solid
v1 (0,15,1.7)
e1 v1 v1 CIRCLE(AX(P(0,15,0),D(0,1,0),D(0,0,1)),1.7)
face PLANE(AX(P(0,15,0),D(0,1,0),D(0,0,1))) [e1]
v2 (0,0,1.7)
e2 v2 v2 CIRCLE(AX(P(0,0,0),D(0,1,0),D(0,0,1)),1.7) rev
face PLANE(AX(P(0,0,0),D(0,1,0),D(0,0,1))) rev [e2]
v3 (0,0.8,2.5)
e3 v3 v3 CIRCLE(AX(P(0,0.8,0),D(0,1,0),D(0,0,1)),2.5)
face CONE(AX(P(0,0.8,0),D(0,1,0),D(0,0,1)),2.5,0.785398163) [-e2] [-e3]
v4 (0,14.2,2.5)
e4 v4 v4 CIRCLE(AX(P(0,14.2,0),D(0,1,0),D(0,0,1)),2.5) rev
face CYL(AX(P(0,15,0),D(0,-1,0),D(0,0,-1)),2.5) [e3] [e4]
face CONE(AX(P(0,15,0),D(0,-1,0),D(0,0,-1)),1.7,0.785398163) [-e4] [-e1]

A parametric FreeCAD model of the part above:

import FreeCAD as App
import Part
import Sketcher


def edges_at(feature, points):
    """Names of the edges that pass closest to the given points."""
    edges = feature.Shape.Edges
    near = lambda p: min(range(len(edges)), key=lambda i: edges[i].distToShape(Part.Vertex(*p))[0])
    return sorted({f"Edge{near(p) + 1}" for p in points})

doc = App.newDocument("Part")
params = doc.addObject("Spreadsheet::Sheet", "Params")
for row, (alias, value) in enumerate([
    ("sketch1_diameter", "5 mm"),
    ("pad1_length", "15 mm"),
    ("chamfer_size", "0.8 mm"),
], start=1):
    params.set(f"A{row}", alias)
    params.set(f"B{row}", "=" + value)
    params.setAlias(f"B{row}", alias)

body = doc.addObject("PartDesign::Body", "Body")

# Sketch on XZ plane
sketch1 = body.newObject("Sketcher::SketchObject", "Sketch")
sketch1.AttachmentSupport = (doc.getObject("XZ_Plane"), [""])
sketch1.MapMode = "FlatFace"
sketch1.addGeometry(Part.Circle(App.Vector(0, 0, 0), App.Vector(0, 0, 1), 2.5), False)
sketch1.addConstraint(Sketcher.Constraint("Coincident", 0, 3, -1, 1))
sketch1.addConstraint(Sketcher.Constraint("Diameter", 0, 5.0))
sketch1.setExpression("Constraints[1]", "Params.sketch1_diameter")
pad1 = body.newObject("PartDesign::Pad", "Pad")
pad1.Profile = sketch1
pad1.setExpression("Length", "Params.pad1_length")
pad1.Reversed = True
doc.recompute()

chamfer = body.newObject("PartDesign::Chamfer", "Chamfer")
chamfer.Base = (pad1, edges_at(pad1, [(0, 0, -2.5), (0, 15, -2.5)]))
chamfer.setExpression("Size", "Params.chamfer_size")

doc.recompute()
